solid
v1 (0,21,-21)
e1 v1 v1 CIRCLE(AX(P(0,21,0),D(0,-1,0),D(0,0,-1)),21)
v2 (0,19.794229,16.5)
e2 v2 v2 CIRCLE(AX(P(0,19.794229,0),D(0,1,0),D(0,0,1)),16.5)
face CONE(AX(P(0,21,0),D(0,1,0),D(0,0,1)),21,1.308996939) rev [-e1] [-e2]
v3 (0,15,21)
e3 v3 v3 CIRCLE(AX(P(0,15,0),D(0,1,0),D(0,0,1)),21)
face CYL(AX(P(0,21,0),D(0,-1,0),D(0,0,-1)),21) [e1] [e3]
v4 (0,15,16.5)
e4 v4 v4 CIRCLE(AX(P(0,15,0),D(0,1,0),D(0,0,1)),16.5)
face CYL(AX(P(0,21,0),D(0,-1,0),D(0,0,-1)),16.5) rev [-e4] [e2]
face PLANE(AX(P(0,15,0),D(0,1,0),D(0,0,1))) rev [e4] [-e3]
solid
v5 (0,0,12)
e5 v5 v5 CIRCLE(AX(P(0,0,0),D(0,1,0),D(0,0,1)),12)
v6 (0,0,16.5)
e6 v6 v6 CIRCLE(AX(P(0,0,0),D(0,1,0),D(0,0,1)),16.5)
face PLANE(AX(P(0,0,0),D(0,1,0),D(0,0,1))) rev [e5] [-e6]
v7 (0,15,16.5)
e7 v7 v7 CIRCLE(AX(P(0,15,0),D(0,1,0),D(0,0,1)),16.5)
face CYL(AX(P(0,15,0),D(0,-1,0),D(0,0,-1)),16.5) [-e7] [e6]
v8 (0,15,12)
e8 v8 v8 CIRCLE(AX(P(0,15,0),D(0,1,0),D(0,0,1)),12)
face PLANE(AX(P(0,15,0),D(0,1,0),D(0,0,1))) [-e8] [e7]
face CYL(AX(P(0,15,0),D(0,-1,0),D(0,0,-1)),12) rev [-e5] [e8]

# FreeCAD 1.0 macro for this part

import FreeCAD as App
import Part
import Sketcher
Q = App.Units.Quantity


def add_polygon(sketch, points):
    """Adds a closed chain of lines whose ends are joined by coincident constraints."""
    first, n = sketch.GeometryCount, len(points)
    for a, b in zip(points, points[1:] + points[:1]):
        sketch.addGeometry(Part.LineSegment(App.Vector(*a, 0), App.Vector(*b, 0)), False)
    for i in range(n):
        sketch.addConstraint(Sketcher.Constraint("Coincident", first + i, 2, first + (i + 1) % n, 1))

doc = App.newDocument("Part")
body = doc.addObject("PartDesign::Body", "Body")

# Sketch on XZ plane
sketch1 = doc.addObject("Sketcher::SketchObject", "Sketch")
body.addObject(sketch1)
sketch1.AttachmentSupport = (doc.XZ_Plane, [""])
sketch1.MapMode = "FlatFace"
sketch1.addGeometry(Part.Circle(App.Vector(0, 0, 0), App.Vector(0, 0, 1), 16.5), False)
sketch1.addGeometry(Part.Circle(App.Vector(0, 0, 0), App.Vector(0, 0, 1), 12), False)
sketch1.addConstraint(Sketcher.Constraint("Coincident", 0, 3, -1, 1))
sketch1.addConstraint(Sketcher.Constraint("Coincident", 1, 3, -1, 1))
sketch1.addConstraint(Sketcher.Constraint("Diameter", 0, 33.0))
sketch1.addConstraint(Sketcher.Constraint("Diameter", 1, 24.0))
pad1 = doc.addObject("PartDesign::Pad", "Pad")
body.addObject(pad1)
pad1.Profile = sketch1
pad1.Length = 15
pad1.Reversed = True
body2 = doc.addObject("PartDesign::Body", "Body001")

# Sketch on XZ plane
sketch2 = doc.addObject("Sketcher::SketchObject", "Sketch001")
body2.addObject(sketch2)
sketch2.AttachmentSupport = (doc.getObject("XZ_Plane001"), [""])
sketch2.MapMode = "FlatFace"
sketch2.AttachmentOffset = App.Placement(App.Vector(0, 0, -15), App.Rotation())
sketch2.addGeometry(Part.Circle(App.Vector(0, 0, 0), App.Vector(0, 0, 1), 21), False)
sketch2.addGeometry(Part.Circle(App.Vector(0, 0, 0), App.Vector(0, 0, 1), 16.5), False)
sketch2.addConstraint(Sketcher.Constraint("Coincident", 0, 3, -1, 1))
sketch2.addConstraint(Sketcher.Constraint("Coincident", 1, 3, -1, 1))
sketch2.addConstraint(Sketcher.Constraint("Diameter", 0, 42.0))
sketch2.addConstraint(Sketcher.Constraint("Diameter", 1, 33.0))
pad2 = doc.addObject("PartDesign::Pad", "Pad001")
body2.addObject(pad2)
pad2.Profile = sketch2
pad2.Length = 6
pad2.Reversed = True

# Sketch on XY plane
sketch3 = doc.addObject("Sketcher::SketchObject", "Sketch002")
body2.addObject(sketch3)
sketch3.AttachmentSupport = (doc.getObject("XY_Plane001"), [""])
sketch3.MapMode = "FlatFace"
add_polygon(sketch3, [(0, 21), (-21, 21), (0, 15.373067)])  # lines 0-2
sketch3.addConstraint(Sketcher.Constraint("Horizontal", 0))
sketch3.addConstraint(Sketcher.Constraint("Vertical", 2))
sketch3.addConstraint(Sketcher.Constraint("PointOnObject", 1, 2, -2))
sketch3.addConstraint(Sketcher.Constraint("DistanceX", 0, 2, 0, 1, 21.0))
sketch3.addConstraint(Sketcher.Constraint("Angle", 1, Q("-15 deg")))
sketch3.addConstraint(Sketcher.Constraint("DistanceY", -1, 1, 0, 2, 21.0))
groove = doc.addObject("PartDesign::Groove", "Groove")
body2.addObject(groove)
groove.Profile = sketch3
groove.ReferenceAxis = (sketch3, ["V_Axis"])
groove.Angle = 360

doc.recompute()
